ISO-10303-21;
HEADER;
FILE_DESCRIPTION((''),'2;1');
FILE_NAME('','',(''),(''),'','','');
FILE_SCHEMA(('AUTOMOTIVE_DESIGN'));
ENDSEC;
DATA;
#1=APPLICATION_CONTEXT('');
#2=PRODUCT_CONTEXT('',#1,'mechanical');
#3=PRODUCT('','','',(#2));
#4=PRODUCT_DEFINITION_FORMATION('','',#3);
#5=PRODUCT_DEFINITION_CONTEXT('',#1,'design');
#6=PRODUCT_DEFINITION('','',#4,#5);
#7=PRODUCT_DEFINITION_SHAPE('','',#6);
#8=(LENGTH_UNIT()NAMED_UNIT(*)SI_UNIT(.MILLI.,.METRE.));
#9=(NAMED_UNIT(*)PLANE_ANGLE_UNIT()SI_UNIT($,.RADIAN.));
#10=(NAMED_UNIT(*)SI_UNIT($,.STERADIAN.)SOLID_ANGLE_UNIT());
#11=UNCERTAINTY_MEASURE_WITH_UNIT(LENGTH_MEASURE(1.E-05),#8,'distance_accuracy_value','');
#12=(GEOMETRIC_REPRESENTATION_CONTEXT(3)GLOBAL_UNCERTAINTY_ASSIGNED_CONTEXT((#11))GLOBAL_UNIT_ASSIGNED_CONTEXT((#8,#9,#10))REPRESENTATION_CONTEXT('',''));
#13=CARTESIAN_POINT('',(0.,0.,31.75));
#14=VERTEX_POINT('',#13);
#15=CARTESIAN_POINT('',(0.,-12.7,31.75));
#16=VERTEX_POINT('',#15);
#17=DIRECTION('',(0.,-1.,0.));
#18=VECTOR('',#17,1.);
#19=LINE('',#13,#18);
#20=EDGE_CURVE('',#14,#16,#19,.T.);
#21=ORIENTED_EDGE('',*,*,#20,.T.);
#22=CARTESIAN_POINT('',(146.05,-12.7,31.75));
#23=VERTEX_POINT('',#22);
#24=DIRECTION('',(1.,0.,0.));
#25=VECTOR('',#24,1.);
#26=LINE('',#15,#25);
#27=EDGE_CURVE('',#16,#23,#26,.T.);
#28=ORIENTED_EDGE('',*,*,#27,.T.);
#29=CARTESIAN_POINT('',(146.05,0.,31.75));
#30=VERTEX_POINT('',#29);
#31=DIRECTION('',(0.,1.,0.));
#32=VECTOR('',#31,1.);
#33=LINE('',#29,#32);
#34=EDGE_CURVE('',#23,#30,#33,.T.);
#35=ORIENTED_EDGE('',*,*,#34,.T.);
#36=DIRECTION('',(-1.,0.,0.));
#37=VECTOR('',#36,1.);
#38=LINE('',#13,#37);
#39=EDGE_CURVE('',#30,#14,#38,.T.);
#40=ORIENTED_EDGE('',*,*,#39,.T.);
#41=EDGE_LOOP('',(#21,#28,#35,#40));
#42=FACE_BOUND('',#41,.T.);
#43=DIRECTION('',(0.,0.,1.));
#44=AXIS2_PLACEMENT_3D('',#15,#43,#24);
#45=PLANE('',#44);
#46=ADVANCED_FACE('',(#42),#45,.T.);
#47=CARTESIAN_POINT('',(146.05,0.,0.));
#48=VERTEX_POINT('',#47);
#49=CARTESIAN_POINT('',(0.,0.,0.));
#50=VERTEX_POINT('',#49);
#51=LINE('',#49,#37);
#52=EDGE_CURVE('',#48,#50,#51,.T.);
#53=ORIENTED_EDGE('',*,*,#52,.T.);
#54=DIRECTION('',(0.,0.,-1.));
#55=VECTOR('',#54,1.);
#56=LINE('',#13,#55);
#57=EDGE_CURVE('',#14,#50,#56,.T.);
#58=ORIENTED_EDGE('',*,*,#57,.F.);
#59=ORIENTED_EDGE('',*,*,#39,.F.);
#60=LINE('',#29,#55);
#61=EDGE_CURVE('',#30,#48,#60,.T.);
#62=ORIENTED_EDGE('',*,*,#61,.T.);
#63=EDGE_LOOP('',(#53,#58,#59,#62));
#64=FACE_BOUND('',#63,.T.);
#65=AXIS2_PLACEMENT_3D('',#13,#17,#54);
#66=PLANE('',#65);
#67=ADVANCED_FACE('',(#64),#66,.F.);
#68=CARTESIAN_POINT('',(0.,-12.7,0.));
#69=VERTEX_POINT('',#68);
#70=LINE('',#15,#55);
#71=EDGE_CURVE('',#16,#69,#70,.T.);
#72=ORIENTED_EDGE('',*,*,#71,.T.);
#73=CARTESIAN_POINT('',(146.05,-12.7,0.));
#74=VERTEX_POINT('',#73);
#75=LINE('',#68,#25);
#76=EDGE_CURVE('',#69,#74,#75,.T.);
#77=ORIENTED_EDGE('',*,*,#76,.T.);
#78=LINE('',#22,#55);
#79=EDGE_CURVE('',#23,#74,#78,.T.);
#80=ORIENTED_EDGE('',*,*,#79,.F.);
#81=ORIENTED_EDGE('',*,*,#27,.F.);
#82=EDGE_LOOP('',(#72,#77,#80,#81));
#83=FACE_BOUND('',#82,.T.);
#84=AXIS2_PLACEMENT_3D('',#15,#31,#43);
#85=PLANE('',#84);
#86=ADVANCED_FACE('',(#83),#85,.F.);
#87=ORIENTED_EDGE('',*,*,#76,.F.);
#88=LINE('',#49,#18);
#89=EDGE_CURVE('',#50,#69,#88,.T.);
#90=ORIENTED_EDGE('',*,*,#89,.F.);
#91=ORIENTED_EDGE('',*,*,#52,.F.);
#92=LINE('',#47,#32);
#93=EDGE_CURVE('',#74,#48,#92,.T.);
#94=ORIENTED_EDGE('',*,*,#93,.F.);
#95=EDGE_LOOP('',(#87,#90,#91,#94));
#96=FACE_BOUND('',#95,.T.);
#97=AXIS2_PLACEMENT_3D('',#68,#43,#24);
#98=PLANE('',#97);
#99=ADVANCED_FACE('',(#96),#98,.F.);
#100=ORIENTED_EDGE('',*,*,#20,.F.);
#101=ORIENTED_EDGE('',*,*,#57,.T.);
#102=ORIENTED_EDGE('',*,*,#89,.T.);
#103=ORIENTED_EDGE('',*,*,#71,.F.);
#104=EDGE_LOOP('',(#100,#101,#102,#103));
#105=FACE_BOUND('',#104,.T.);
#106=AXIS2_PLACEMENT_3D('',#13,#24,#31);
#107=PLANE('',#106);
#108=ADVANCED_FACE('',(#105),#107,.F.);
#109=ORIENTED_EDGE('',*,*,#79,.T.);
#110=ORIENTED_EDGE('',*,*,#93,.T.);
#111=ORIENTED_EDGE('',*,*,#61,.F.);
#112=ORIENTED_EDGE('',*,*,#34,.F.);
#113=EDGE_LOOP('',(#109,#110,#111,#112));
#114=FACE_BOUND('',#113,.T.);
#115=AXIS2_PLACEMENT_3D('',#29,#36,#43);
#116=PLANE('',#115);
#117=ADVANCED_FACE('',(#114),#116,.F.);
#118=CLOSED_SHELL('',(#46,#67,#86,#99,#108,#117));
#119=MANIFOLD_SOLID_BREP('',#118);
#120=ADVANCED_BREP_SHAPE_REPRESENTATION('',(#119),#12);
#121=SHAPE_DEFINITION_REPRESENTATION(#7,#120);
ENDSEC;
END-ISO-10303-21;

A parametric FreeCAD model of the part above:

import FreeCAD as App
import Part
import Sketcher
Q = App.Units.Quantity


def add_polygon(sketch, points):
    """Adds a closed chain of lines whose ends are joined by coincident constraints."""
    first, n = sketch.GeometryCount, len(points)
    for a, b in zip(points, points[1:] + points[:1]):
        sketch.addGeometry(Part.LineSegment(App.Vector(*a, 0), App.Vector(*b, 0)), False)
    for i in range(n):
        sketch.addConstraint(Sketcher.Constraint("Coincident", first + i, 2, first + (i + 1) % n, 1))

doc = App.newDocument("Part")
params = doc.addObject("Spreadsheet::Sheet", "Params")
for row, (alias, value) in enumerate([
    ("sketch1_height", "0.5 in"),
    ("sketch1_width", "5.75 in"),
    ("pad1_length", "1.25 in"),
], start=1):
    params.set(f"A{row}", alias)
    params.set(f"B{row}", "=" + value)
    params.setAlias(f"B{row}", alias)

body = doc.addObject("PartDesign::Body", "Body")

# Sketch on XY plane
sketch1 = doc.addObject("Sketcher::SketchObject", "Sketch")
body.addObject(sketch1)
sketch1.AttachmentSupport = (doc.XY_Plane, [""])
sketch1.MapMode = "FlatFace"
add_polygon(sketch1, [(0, 0), (0, -13), (146, -13), (146, 0)])  # lines 0-3
sketch1.addConstraint(Sketcher.Constraint("Vertical", 0))
sketch1.addConstraint(Sketcher.Constraint("Horizontal", 1))
sketch1.addConstraint(Sketcher.Constraint("Vertical", 2))
sketch1.addConstraint(Sketcher.Constraint("Horizontal", 3))
sketch1.addConstraint(Sketcher.Constraint("Coincident", 3, 2, -1, 1))
sketch1.addConstraint(Sketcher.Constraint("DistanceY", 0, 2, 0, 1, Q("0.5 in")))
sketch1.addConstraint(Sketcher.Constraint("DistanceX", 1, 1, 1, 2, Q("5.75 in")))
sketch1.setExpression("Constraints[9]", "Params.sketch1_height")
sketch1.setExpression("Constraints[10]", "Params.sketch1_width")
pad1 = doc.addObject("PartDesign::Pad", "Pad")
body.addObject(pad1)
pad1.Profile = sketch1
pad1.setExpression("Length", "Params.pad1_length")

doc.recompute()
